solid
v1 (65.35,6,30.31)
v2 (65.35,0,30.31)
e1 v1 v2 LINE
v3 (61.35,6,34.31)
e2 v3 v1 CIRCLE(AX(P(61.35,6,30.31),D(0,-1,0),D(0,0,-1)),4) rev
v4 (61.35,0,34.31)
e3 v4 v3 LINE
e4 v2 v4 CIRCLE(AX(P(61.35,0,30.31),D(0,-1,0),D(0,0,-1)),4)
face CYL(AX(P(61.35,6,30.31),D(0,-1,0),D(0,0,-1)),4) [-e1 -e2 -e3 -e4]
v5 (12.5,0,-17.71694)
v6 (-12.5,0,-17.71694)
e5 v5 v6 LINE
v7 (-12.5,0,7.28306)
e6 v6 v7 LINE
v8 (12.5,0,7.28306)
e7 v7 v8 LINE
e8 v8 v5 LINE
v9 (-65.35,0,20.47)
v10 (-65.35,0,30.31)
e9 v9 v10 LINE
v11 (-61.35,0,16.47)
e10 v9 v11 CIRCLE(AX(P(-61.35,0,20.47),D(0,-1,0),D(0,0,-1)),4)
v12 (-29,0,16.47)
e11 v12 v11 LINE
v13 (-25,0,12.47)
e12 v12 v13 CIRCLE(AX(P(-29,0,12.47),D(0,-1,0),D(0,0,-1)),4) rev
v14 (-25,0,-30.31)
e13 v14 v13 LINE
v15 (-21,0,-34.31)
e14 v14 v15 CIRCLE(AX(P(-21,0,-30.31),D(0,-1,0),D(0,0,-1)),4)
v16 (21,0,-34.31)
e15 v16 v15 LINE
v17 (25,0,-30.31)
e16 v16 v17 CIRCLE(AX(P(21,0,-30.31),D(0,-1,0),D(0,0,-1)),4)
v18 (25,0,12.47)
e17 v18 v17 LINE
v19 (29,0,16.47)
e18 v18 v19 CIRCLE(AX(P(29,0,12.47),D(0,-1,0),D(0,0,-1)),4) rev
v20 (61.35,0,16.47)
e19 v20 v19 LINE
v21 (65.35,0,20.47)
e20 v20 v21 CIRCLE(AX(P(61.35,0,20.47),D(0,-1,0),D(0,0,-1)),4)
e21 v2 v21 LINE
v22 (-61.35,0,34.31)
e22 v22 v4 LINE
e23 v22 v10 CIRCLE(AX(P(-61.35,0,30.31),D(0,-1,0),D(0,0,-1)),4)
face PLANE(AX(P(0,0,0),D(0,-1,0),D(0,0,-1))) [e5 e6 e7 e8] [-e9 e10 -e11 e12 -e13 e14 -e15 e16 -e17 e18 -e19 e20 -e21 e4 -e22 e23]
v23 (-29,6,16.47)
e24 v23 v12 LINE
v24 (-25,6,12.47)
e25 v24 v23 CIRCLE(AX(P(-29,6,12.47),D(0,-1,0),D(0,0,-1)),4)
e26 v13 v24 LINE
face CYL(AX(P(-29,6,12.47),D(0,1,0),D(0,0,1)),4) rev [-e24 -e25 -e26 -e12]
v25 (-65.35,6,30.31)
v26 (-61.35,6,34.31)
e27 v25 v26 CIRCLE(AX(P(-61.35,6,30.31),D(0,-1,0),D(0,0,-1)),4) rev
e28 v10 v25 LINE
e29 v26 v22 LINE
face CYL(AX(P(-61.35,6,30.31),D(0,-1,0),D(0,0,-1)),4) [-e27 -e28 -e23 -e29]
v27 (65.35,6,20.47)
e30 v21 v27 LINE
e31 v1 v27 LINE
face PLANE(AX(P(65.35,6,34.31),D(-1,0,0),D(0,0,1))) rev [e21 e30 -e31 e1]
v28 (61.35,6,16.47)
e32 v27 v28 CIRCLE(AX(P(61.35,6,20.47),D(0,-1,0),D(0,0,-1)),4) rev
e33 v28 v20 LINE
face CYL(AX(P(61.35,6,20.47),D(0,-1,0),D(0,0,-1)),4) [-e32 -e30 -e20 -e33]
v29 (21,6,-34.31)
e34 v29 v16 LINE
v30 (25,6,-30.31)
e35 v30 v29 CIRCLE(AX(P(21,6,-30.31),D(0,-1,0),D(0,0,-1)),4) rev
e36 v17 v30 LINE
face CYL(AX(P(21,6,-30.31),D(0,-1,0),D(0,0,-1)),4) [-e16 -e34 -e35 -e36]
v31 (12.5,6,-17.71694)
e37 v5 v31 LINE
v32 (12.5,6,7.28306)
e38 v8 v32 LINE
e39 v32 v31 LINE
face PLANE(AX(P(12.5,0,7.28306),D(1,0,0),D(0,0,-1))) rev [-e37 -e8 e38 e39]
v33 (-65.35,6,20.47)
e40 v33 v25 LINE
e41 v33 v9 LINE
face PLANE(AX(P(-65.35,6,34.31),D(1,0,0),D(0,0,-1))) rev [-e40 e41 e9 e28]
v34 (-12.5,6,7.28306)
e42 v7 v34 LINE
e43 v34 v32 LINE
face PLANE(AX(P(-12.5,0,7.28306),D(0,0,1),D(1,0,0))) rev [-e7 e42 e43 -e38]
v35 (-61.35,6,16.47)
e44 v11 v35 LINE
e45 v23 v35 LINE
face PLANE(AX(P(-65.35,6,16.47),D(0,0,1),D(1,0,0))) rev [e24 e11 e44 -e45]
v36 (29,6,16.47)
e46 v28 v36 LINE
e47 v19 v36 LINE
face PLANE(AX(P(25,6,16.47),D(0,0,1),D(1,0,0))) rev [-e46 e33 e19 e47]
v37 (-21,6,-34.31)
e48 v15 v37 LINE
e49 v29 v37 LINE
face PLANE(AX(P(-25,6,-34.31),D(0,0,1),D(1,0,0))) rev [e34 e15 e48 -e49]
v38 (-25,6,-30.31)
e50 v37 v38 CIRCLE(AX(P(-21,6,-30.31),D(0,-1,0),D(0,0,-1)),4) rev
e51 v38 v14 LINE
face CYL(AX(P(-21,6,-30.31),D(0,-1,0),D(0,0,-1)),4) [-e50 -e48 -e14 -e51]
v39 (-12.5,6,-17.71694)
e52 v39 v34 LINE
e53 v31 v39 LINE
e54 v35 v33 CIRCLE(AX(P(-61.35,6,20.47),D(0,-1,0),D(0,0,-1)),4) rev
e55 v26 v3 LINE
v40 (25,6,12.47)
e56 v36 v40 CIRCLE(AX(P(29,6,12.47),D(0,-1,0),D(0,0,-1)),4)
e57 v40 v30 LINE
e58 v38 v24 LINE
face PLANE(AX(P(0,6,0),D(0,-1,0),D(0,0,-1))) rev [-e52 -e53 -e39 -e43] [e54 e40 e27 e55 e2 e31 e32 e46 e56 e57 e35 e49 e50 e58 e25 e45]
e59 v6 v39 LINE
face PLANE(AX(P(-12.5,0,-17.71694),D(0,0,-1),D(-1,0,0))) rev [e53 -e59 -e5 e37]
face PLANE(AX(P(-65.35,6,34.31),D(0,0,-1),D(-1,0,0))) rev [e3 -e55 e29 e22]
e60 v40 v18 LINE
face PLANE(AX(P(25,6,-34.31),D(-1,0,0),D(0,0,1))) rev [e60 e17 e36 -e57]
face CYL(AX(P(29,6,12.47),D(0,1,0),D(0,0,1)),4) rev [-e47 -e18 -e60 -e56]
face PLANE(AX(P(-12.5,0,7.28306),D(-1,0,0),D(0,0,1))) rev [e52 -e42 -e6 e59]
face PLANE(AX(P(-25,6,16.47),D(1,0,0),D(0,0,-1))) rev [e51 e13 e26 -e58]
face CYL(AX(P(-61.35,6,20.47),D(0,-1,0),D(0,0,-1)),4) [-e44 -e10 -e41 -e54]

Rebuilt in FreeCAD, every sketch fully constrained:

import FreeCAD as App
import Part
import Sketcher

V = App.Vector


def edges_at(feature, points):
    """Names of the edges that pass closest to the given points."""
    edges = feature.Shape.Edges
    near = lambda p: min(range(len(edges)), key=lambda i: edges[i].distToShape(Part.Vertex(*p))[0])
    return sorted({f"Edge{near(p) + 1}" for p in points})


def add_polygon(sketch, points):
    """Adds a closed chain of lines whose ends are joined by coincident constraints."""
    first, n = sketch.GeometryCount, len(points)
    for a, b in zip(points, points[1:] + points[:1]):
        sketch.addGeometry(Part.LineSegment(App.Vector(*a, 0), App.Vector(*b, 0)), False)
    for i in range(n):
        sketch.addConstraint(Sketcher.Constraint("Coincident", first + i, 2, first + (i + 1) % n, 1))

doc = App.newDocument("Part")
params = doc.addObject("Spreadsheet::Sheet", "Params")
for row, (alias, value) in enumerate([
    ("sketch1_width", "50 mm"),
    ("sketch1_width2", "130.7 mm"),
    ("sketch1_height", "17.84 mm"),
    ("sketch1_height2", "50.78 mm"),
    ("pad1_length", "6 mm"),
    ("fillet_radius", "4 mm"),
    ("sketch2_width", "25 mm"),
    ("pocket1_length", "6 mm"),
], start=1):
    params.set(f"A{row}", alias)
    params.set(f"B{row}", "=" + value)
    params.setAlias(f"B{row}", alias)

body = doc.addObject("PartDesign::Body", "Body")

sketch1 = body.newObject("Sketcher::SketchObject", "Sketch")
sketch1.AttachmentSupport = (doc.getObject("XZ_Plane"), [""])
sketch1.MapMode = "FlatFace"
add_polygon(sketch1, [(-65, 34), (65, 34), (65, 16), (25, 16), (25, -34), (-25, -34), (-25, 16), (-65, 16)])
sketch1.addConstraint([
    Sketcher.Constraint("Horizontal", 0),
    Sketcher.Constraint("Vertical", 1),
    Sketcher.Constraint("Horizontal", 2),
    Sketcher.Constraint("Vertical", 3),
    Sketcher.Constraint("Horizontal", 4),
    Sketcher.Constraint("Vertical", 5),
    Sketcher.Constraint("Horizontal", 6),
    Sketcher.Constraint("Vertical", 7),
    Sketcher.Constraint("Symmetric", 2, 2, 5, 2, -2),
    Sketcher.Constraint("Equal", 2, 6),
    Sketcher.Constraint("DistanceX", 4, 2, 4, 1, 50.0),
    Sketcher.Constraint("DistanceX", 0, 1, 0, 2, 130.7),
    Sketcher.Constraint("DistanceY", 1, 2, 1, 1, 17.84),
    Sketcher.Constraint("DistanceY", 3, 2, 3, 1, 50.78),
    Sketcher.Constraint("DistanceY", -1, 1, 0, 2, 34.31),
])
sketch1.setExpression("Constraints[18]", "Params.sketch1_width")
sketch1.setExpression("Constraints[19]", "Params.sketch1_width2")
sketch1.setExpression("Constraints[20]", "Params.sketch1_height")
sketch1.setExpression("Constraints[21]", "Params.sketch1_height2")
pad1 = body.newObject("PartDesign::Pad", "Pad")
pad1.Profile = sketch1
pad1.setExpression("Length", "Params.pad1_length")
pad1.Reversed = True
doc.recompute()

fillet = body.newObject("PartDesign::Fillet", "Fillet")
fillet.Base = (pad1, edges_at(pad1, [
    (65.35, 3, 34.31),
    (-65.35, 3, 34.31),
    (-65.35, 3, 16.47),
    (-25, 3, 16.47),
    (-25, 3, -34.31),
    (25, 3, -34.31),
    (25, 3, 16.47),
    (65.35, 3, 16.47),
]))
fillet.setExpression("Radius", "Params.fillet_radius")

sketch2 = body.newObject("Sketcher::SketchObject", "Sketch001")
sketch2.AttachmentSupport = (doc.getObject("XZ_Plane"), [""])
sketch2.MapMode = "FlatFace"
sketch2.AttachmentOffset = App.Placement(V(0, 0, -6), App.Rotation())
add_polygon(sketch2, [(-12, -18), (-12, 7), (12, 7), (12, -18)])
sketch2.addConstraint([
    Sketcher.Constraint("Vertical", 0),
    Sketcher.Constraint("Horizontal", 1),
    Sketcher.Constraint("Vertical", 2),
    Sketcher.Constraint("Horizontal", 3),
    Sketcher.Constraint("Equal", 3, 0),
    Sketcher.Constraint("DistanceX", 1, 1, 1, 2, 25.0),
    Sketcher.Constraint("DistanceX", 0, 2, -1, 1, 12.5),
    Sketcher.Constraint("DistanceY", -1, 1, 0, 2, 7.28306),
])
sketch2.setExpression("Constraints[9]", "Params.sketch2_width")
pocket1 = body.newObject("PartDesign::Pocket", "Pocket")
pocket1.Profile = sketch2
pocket1.setExpression("Length", "Params.pocket1_length")
pocket1.Reversed = True

doc.recompute()
